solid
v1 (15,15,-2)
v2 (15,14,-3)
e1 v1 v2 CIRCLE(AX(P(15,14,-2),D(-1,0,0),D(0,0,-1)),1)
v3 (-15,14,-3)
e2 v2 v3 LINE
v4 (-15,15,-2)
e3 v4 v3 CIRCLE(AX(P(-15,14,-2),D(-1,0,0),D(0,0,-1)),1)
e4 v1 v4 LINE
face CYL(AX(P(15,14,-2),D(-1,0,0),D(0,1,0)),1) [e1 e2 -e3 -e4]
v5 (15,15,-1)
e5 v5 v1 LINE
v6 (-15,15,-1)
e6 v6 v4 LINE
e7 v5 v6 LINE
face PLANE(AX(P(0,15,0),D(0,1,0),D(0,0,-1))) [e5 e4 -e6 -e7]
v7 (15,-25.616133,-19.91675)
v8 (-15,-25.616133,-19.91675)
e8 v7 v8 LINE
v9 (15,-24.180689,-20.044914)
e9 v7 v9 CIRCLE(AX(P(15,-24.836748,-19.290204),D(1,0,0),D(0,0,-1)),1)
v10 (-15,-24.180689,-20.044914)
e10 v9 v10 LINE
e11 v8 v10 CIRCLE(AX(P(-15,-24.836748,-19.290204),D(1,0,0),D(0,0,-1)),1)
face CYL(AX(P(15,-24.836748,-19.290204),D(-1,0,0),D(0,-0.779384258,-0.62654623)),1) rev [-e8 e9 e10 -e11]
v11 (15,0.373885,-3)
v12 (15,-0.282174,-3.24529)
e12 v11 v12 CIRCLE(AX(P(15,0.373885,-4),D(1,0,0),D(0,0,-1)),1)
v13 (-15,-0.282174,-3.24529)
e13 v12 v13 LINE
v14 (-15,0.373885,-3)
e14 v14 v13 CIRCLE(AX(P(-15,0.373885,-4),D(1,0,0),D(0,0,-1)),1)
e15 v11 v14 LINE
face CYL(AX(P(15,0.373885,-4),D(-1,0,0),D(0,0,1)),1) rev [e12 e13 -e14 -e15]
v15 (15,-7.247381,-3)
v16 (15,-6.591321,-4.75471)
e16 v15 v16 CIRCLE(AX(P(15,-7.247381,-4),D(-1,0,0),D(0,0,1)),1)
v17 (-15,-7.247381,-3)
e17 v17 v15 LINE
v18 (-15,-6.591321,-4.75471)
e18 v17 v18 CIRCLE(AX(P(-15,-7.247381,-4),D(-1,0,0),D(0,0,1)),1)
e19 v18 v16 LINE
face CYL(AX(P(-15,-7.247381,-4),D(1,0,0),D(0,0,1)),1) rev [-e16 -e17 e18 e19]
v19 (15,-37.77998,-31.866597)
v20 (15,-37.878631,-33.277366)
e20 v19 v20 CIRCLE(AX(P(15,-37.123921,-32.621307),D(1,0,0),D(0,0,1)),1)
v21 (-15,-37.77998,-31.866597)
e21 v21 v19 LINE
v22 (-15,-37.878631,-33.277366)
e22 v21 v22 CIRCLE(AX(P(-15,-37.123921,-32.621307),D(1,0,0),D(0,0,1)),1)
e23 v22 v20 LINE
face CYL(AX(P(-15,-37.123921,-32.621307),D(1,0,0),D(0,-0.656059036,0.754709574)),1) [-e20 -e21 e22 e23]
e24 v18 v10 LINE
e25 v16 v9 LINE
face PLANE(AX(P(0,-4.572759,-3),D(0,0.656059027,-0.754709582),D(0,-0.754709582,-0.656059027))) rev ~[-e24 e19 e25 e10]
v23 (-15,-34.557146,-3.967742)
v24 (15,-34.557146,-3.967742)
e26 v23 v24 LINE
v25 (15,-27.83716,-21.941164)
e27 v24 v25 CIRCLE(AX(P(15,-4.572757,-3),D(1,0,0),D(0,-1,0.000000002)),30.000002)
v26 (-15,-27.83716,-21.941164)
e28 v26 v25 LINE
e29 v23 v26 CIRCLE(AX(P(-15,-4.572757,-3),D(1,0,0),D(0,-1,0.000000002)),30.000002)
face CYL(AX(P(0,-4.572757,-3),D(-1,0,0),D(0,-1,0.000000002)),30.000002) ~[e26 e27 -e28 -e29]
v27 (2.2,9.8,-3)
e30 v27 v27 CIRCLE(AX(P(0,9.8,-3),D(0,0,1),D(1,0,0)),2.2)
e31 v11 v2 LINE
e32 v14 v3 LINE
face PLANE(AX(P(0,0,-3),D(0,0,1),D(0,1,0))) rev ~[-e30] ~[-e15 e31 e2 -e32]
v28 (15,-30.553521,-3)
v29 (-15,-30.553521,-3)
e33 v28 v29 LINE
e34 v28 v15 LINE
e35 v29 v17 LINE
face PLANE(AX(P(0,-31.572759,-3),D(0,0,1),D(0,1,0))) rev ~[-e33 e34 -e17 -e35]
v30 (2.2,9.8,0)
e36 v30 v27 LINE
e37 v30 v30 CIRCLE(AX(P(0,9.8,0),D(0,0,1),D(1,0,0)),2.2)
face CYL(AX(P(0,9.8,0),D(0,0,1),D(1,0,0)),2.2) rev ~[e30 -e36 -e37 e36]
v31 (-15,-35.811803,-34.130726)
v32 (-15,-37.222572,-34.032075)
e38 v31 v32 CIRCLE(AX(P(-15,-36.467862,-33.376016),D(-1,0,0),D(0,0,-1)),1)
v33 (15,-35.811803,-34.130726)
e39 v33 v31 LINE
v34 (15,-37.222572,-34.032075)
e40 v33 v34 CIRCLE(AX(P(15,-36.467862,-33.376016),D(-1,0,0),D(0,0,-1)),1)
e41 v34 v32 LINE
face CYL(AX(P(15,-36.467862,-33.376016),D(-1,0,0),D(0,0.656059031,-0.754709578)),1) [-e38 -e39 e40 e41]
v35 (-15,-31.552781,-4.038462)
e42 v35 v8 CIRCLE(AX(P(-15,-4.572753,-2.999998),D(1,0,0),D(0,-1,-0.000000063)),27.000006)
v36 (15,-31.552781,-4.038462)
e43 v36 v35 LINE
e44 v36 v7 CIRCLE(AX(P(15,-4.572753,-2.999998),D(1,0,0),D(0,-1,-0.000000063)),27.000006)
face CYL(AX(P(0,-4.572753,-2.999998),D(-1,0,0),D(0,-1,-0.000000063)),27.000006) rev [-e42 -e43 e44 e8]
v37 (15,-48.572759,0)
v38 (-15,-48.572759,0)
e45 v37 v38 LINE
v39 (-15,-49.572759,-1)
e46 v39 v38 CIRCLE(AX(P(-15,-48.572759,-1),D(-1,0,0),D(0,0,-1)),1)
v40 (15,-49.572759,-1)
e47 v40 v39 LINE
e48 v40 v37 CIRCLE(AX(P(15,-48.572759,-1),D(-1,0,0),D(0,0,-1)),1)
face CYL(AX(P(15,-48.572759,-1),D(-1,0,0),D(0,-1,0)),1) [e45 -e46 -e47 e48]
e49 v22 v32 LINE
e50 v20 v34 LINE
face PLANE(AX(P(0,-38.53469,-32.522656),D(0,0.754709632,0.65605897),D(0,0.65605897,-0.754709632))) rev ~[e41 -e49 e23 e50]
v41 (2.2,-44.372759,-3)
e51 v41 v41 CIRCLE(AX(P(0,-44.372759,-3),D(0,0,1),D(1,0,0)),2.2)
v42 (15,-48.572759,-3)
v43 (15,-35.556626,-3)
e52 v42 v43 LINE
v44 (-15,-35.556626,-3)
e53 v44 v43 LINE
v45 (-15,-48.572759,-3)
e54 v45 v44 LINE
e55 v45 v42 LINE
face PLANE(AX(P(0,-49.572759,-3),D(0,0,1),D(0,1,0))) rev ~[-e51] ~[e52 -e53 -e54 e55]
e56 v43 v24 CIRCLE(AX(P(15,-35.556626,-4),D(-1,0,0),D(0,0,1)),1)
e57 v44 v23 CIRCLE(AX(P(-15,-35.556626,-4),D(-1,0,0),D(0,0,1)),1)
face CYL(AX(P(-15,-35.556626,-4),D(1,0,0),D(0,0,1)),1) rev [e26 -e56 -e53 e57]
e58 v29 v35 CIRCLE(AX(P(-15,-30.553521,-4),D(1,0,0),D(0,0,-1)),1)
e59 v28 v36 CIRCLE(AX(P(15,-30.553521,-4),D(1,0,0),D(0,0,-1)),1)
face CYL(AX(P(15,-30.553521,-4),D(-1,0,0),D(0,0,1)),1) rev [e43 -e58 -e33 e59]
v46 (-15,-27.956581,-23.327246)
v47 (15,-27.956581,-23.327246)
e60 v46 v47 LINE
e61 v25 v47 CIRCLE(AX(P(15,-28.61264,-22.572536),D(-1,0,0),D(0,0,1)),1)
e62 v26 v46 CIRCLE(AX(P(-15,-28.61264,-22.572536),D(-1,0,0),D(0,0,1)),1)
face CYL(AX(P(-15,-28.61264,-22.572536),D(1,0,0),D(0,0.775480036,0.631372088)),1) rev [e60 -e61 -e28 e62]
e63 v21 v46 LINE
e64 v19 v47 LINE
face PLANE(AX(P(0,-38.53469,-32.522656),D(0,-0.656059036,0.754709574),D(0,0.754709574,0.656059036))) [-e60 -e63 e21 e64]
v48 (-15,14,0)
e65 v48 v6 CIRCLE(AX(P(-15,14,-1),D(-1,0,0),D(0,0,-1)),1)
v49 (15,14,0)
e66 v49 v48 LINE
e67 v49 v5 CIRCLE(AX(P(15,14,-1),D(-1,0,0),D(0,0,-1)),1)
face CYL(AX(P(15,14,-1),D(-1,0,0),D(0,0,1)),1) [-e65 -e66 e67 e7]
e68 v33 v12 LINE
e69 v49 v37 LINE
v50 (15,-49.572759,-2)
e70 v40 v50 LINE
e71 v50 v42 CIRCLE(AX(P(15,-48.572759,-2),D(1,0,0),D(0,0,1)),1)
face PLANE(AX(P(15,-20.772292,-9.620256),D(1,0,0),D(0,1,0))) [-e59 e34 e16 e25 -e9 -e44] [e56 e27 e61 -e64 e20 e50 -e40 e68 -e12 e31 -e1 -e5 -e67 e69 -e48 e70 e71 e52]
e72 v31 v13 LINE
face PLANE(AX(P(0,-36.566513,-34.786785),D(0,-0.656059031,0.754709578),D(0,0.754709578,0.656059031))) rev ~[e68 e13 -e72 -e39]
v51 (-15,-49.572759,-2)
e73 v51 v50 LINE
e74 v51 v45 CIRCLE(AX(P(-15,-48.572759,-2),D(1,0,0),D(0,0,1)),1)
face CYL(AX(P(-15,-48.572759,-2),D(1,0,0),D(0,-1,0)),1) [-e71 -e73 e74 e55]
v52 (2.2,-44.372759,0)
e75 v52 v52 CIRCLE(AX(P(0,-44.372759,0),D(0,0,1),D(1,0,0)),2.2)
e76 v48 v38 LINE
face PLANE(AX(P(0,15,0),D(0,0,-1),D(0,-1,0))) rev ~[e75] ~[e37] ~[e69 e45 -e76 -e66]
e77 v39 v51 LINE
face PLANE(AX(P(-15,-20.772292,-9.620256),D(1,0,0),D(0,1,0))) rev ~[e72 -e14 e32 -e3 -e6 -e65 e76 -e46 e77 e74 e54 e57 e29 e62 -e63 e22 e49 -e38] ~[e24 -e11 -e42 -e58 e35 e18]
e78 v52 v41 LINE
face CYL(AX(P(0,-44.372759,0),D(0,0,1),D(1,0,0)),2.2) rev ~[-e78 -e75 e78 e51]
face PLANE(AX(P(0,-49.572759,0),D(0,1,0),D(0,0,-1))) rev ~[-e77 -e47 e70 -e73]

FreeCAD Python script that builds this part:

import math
import FreeCAD as App
import Part
import Sketcher
from FreeCAD import Vector
Q = App.Units.Quantity


def edges_at(feature, points):
    """Names of the edges that pass closest to the given points."""
    edges = feature.Shape.Edges
    near = lambda p: min(range(len(edges)), key=lambda i: edges[i].distToShape(Part.Vertex(*p))[0])
    return sorted({f"Edge{near(p) + 1}" for p in points})

doc = App.newDocument("Part")
body = doc.addObject("PartDesign::Body", "Body")

# Sketch on YZ plane
sketch1 = body.newObject("Sketcher::SketchObject", "Sketch")
sketch1.AttachmentSupport = (doc.getObject("YZ_Plane"), [""])
sketch1.MapMode = "FlatFace"
sketch1.addGeometry([
    Part.LineSegment(Vector(-49.572759, 0, 0), Vector(-49.572759, -3, 0)),  # 0
    Part.LineSegment(Vector(-49.572759, -3, 0), Vector(-34.572759, -3, 0)),  # 1
    Part.ArcOfCircle(Part.Circle(Vector(-4.572757, -3, 0), Vector(0, 0, 1), 30.000002), math.radians(180), math.radians(220.999997)),  # 2
    Part.LineSegment(Vector(-27.214047, -22.681771, 0), Vector(-38.53469, -32.522656, 0)),  # 3
    Part.LineSegment(Vector(-38.53469, -32.522656, 0), Vector(-36.566513, -34.786785, 0)),  # 4
    Part.LineSegment(Vector(-36.566513, -34.786785, 0), Vector(0, -3, 0)),  # 5
    Part.LineSegment(Vector(0, -3, 0), Vector(15, -3, 0)),  # 6
    Part.LineSegment(Vector(15, -3, 0), Vector(15, 0, 0)),  # 7
    Part.LineSegment(Vector(15, 0, 0), Vector(-49.572759, 0, 0)),  # 8
    Part.LineSegment(Vector(-31.572759, -3, 0), Vector(-4.572759, -3, 0)),  # 9
    Part.LineSegment(Vector(-4.572759, -3, 0), Vector(-24.949918, -20.713594, 0)),  # 10
    Part.ArcOfCircle(Part.Circle(Vector(-4.572753, -2.999998, 0), Vector(0, 0, 1), 27.000006), math.radians(-179.999996), math.radians(-139.000006)),  # 11
], False)
sketch1.addConstraint([
    Sketcher.Constraint("Coincident", 0, 2, 1, 1),
    Sketcher.Constraint("Coincident", 1, 2, 2, 1),
    Sketcher.Constraint("Coincident", 2, 2, 3, 1),
    Sketcher.Constraint("Coincident", 3, 2, 4, 1),
    Sketcher.Constraint("Coincident", 4, 2, 5, 1),
    Sketcher.Constraint("Coincident", 5, 2, 6, 1),
    Sketcher.Constraint("Coincident", 6, 2, 7, 1),
    Sketcher.Constraint("Coincident", 7, 2, 8, 1),
    Sketcher.Constraint("Coincident", 8, 2, 0, 1),
    Sketcher.Constraint("Coincident", 9, 2, 10, 1),
    Sketcher.Constraint("Coincident", 10, 2, 11, 2),
    Sketcher.Constraint("Coincident", 11, 1, 9, 1),
    Sketcher.Constraint("Vertical", 0),
    Sketcher.Constraint("Horizontal", 1),
    Sketcher.Constraint("Horizontal", 6),
    Sketcher.Constraint("Vertical", 7),
    Sketcher.Constraint("Horizontal", 8),
    Sketcher.Constraint("Horizontal", 9),
    Sketcher.Constraint("Coincident", 11, 3, 2, 3),
    Sketcher.Constraint("Coincident", 9, 2, 2, 3),
    Sketcher.Constraint("PointOnObject", 5, 2, -2),
    Sketcher.Constraint("PointOnObject", 7, 2, -1),
    Sketcher.Constraint("Perpendicular", 3, 4),
    Sketcher.Constraint("Perpendicular", 4, 5),
    Sketcher.Constraint("Parallel", 5, 10),
    Sketcher.Constraint("Horizontal", 11, 3, 0, 2),
    Sketcher.Constraint("Horizontal", 1, 2, 5, 2),
    Sketcher.Constraint("Equal", 1, 6),
    Sketcher.Constraint("DistanceX", 1, 1, 1, 2, 15.0),
    Sketcher.Constraint("DistanceX", 9, 1, 9, 2, 27.0),
    Sketcher.Constraint("DistanceY", 0, 2, 0, 1, 3.0),
    Sketcher.Constraint("Angle", 3, Q("-138.999999 deg")),
    Sketcher.Constraint("Distance", 3, 14.999999),
    Sketcher.Constraint("Distance", 4, 3.0),
    Sketcher.Constraint("DistanceX", 1, 2, 11, 1, 3.0),
    Sketcher.Constraint("DistanceX", 8, 2, 8, 1, 64.572759),
])
pad1 = body.newObject("PartDesign::Pad", "Pad")
pad1.Profile = sketch1
pad1.Type = "TwoLengths"
pad1.Length = 15
pad1.Length2 = 15
pad1.Reversed = True

# Sketch on XY plane
sketch2 = body.newObject("Sketcher::SketchObject", "Sketch001")
sketch2.AttachmentSupport = (doc.getObject("XY_Plane"), [""])
sketch2.MapMode = "FlatFace"
sketch2.addGeometry([
    Part.Circle(Vector(0, 9.8, 0), Vector(0, 0, 1), 2.2),
    Part.Circle(Vector(0, -44.372759, 0), Vector(0, 0, 1), 2.2),
], False)
sketch2.addConstraint([
    Sketcher.Constraint("Equal", 0, 1),
    Sketcher.Constraint("PointOnObject", 0, 3, -2),
    Sketcher.Constraint("PointOnObject", 1, 3, -2),
    Sketcher.Constraint("Diameter", 0, 4.4),
    Sketcher.Constraint("DistanceY", -1, 1, 0, 3, 9.8),
    Sketcher.Constraint("DistanceY", 1, 3, -1, 1, 44.372759),
])
pocket1 = body.newObject("PartDesign::Pocket", "Pocket")
pocket1.Profile = sketch2
pocket1.Length = 5
doc.recompute()

fillet = body.newObject("PartDesign::Fillet", "Fillet")
fillet.Base = (pocket1, edges_at(pocket1, [
    (0, -49.573, 0),
    (0, -49.573, -3),
    (0, -34.573, -3),
    (0, -27.214, -22.682),
    (0, -38.535, -32.523),
    (0, -36.567, -34.787),
    (0, -31.573, -3),
    (0, -4.573, -3),
    (0, -24.95, -20.714),
    (0, 15, 0),
    (0, 15, -3),
    (0, 0, -3),
]))
fillet.Radius = 1

doc.recompute()
